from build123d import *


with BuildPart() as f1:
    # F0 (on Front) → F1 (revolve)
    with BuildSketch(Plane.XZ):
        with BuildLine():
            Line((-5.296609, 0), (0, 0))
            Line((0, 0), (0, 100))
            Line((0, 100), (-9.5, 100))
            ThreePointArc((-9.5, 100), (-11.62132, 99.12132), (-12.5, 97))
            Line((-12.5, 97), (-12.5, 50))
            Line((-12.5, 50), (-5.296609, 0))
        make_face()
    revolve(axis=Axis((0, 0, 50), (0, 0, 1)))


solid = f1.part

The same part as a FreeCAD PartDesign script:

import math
import FreeCAD as App
import Part
import Sketcher
from FreeCAD import Vector
Q = App.Units.Quantity

doc = App.newDocument("Part")
body = doc.addObject("PartDesign::Body", "Body")

# Sketch on XZ plane
sketch1 = body.newObject("Sketcher::SketchObject", "Sketch")
sketch1.AttachmentSupport = (doc.getObject("XZ_Plane"), [""])
sketch1.MapMode = "FlatFace"
sketch1.addGeometry(Part.LineSegment(Vector(-5.3, 0, 0), Vector(0, 0, 0)), False)
sketch1.addGeometry(Part.LineSegment(Vector(0, 0, 0), Vector(0, 100, 0)), False)
sketch1.addGeometry(Part.LineSegment(Vector(0, 100, 0), Vector(-9.5, 100, 0)), False)
sketch1.addGeometry(Part.ArcOfCircle(Part.Circle(Vector(-9.5, 97, 0), Vector(0, 0, 1), 3), math.radians(90), math.radians(180)), False)
sketch1.addGeometry(Part.LineSegment(Vector(-12.5, 97, 0), Vector(-12.5, 50, 0)), False)
sketch1.addGeometry(Part.LineSegment(Vector(-12.5, 50, 0), Vector(-5.3, 0, 0)), False)
sketch1.addConstraint(Sketcher.Constraint("Coincident", 0, 2, 1, 1))
sketch1.addConstraint(Sketcher.Constraint("Coincident", 1, 2, 2, 1))
sketch1.addConstraint(Sketcher.Constraint("Tangent", 2, 2, 3, 1))
sketch1.addConstraint(Sketcher.Constraint("Tangent", 3, 2, 4, 1))
sketch1.addConstraint(Sketcher.Constraint("Coincident", 4, 2, 5, 1))
sketch1.addConstraint(Sketcher.Constraint("Coincident", 5, 2, 0, 1))
sketch1.addConstraint(Sketcher.Constraint("Horizontal", 0))
sketch1.addConstraint(Sketcher.Constraint("Vertical", 1))
sketch1.addConstraint(Sketcher.Constraint("Horizontal", 2))
sketch1.addConstraint(Sketcher.Constraint("Vertical", 4))
sketch1.addConstraint(Sketcher.Constraint("Coincident", 0, 2, -1, 1))
sketch1.addConstraint(Sketcher.Constraint("Radius", 3, Q("3.000001 mm")))
sketch1.addConstraint(Sketcher.Constraint("DistanceY", 1, 1, 1, 2, Q("100 mm")))
sketch1.addConstraint(Sketcher.Constraint("DistanceY", 4, 2, 4, 1, Q("47 mm")))
sketch1.addConstraint(Sketcher.Constraint("DistanceX", 2, 2, 2, 1, Q("9.5 mm")))
sketch1.addConstraint(Sketcher.Constraint("DistanceX", 0, 1, 0, 2, Q("5.296609 mm")))
revolution = body.newObject("PartDesign::Revolution", "Revolution")
revolution.Profile = sketch1
revolution.ReferenceAxis = (sketch1, ["V_Axis"])
revolution.Angle = 360

doc.recompute()
